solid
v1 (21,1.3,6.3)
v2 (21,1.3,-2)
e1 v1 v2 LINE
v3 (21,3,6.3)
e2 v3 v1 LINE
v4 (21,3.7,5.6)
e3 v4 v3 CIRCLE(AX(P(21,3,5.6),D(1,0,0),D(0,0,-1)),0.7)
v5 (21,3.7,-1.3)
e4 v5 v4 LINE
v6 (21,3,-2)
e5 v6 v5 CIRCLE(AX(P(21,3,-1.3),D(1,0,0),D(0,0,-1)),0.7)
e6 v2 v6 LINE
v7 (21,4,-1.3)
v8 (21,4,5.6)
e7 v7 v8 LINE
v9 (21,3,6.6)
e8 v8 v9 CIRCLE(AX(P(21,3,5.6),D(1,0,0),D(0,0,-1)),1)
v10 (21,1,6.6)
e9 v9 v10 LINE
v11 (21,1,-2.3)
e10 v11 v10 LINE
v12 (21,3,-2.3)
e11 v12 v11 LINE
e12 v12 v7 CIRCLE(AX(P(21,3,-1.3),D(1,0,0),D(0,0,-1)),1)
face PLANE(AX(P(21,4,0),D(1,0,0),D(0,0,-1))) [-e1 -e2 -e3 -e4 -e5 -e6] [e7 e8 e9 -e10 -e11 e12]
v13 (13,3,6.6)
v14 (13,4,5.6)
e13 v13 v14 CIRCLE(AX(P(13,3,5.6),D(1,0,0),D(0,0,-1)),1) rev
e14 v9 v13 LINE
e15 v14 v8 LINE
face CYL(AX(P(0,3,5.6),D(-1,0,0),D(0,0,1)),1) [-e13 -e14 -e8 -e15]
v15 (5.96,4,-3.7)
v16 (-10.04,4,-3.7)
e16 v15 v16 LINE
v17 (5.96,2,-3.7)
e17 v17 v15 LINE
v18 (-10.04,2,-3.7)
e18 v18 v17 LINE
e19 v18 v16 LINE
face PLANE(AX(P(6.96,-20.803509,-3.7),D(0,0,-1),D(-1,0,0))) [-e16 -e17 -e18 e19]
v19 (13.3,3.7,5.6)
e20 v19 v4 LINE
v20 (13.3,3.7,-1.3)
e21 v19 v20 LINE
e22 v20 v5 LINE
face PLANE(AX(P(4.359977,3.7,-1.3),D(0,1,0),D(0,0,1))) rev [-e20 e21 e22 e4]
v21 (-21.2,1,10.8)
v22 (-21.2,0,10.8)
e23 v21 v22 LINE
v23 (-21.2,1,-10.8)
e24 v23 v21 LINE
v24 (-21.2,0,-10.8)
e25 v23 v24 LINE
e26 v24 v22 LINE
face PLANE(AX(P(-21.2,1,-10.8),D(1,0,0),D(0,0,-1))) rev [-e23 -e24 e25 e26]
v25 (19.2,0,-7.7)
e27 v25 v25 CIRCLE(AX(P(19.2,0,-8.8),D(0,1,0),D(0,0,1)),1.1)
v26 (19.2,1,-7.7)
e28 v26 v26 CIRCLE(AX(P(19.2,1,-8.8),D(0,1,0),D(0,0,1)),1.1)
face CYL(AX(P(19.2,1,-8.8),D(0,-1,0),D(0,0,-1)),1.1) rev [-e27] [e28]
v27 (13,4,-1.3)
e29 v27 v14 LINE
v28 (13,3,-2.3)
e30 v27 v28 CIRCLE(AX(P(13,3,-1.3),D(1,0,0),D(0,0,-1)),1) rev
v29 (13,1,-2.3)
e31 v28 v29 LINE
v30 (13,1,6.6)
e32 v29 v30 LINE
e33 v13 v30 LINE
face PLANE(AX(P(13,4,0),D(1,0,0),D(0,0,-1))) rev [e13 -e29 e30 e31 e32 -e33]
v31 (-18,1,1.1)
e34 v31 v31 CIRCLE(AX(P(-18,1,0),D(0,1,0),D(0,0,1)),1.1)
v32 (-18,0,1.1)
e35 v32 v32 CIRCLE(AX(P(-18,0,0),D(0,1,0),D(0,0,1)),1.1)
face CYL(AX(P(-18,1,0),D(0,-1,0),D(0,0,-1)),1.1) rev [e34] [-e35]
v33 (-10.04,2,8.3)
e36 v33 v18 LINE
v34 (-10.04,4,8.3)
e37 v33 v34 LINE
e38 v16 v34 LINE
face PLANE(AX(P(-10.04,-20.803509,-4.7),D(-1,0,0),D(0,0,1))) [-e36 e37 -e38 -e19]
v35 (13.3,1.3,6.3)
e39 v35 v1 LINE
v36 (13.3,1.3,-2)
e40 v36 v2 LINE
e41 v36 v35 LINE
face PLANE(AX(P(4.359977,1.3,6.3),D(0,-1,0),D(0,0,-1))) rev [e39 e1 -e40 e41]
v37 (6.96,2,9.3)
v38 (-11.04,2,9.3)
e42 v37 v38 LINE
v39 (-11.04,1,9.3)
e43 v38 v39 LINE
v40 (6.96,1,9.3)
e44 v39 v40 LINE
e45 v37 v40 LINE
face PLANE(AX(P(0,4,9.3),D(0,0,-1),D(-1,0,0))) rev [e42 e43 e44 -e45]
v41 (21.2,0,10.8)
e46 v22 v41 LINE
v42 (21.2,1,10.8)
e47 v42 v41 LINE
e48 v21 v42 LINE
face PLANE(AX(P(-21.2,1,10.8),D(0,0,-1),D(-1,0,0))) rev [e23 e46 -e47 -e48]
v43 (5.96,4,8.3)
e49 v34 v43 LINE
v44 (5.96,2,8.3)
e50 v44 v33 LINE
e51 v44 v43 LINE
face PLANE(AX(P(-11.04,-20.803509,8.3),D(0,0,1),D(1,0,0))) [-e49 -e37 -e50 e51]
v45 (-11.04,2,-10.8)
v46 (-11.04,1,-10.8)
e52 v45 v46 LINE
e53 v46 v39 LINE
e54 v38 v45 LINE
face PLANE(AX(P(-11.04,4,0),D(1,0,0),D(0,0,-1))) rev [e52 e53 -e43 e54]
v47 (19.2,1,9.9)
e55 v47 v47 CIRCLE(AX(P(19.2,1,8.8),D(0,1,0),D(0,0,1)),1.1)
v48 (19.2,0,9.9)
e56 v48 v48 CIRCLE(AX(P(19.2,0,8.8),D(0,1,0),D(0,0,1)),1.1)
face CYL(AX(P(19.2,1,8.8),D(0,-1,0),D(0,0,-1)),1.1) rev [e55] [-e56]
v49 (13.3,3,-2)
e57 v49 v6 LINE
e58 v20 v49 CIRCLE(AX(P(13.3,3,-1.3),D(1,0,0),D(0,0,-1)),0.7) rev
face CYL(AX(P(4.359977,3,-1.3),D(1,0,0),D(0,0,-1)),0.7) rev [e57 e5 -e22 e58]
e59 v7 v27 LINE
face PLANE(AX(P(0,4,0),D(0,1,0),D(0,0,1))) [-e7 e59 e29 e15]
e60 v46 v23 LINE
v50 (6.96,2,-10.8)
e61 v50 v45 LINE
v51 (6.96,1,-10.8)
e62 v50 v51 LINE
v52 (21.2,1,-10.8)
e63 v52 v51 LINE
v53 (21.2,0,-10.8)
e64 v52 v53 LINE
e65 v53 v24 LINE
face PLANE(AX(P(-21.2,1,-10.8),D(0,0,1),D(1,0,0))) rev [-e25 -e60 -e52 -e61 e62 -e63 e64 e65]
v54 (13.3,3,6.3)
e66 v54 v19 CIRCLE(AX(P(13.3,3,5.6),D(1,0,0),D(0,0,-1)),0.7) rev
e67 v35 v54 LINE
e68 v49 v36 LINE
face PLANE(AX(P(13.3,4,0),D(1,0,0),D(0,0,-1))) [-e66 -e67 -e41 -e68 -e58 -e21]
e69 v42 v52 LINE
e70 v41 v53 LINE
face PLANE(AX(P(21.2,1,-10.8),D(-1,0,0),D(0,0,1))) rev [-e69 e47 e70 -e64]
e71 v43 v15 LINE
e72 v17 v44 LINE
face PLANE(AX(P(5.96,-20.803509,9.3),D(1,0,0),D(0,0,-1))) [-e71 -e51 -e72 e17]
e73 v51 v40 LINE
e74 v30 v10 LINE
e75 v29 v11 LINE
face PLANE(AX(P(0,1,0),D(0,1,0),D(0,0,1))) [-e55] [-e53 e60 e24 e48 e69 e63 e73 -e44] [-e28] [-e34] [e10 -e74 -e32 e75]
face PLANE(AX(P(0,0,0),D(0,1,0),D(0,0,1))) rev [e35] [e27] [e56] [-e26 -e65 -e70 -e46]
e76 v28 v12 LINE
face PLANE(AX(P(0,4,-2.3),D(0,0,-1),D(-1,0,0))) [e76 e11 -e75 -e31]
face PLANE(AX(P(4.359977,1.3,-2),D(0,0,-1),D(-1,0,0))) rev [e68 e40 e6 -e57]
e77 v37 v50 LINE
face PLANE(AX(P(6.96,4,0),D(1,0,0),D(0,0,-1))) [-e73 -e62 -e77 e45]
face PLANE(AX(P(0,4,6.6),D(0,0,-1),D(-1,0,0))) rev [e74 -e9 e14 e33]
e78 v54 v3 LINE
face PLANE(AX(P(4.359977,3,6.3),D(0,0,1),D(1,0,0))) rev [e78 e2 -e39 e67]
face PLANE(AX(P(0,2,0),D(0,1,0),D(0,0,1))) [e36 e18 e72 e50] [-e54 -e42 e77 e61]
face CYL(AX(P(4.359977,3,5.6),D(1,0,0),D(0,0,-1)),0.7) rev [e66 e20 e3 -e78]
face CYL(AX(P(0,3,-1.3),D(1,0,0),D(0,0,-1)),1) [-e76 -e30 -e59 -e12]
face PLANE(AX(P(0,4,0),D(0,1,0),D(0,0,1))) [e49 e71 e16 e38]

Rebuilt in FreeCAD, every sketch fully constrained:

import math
import FreeCAD as App
import Part
import Sketcher
from FreeCAD import Vector


def edges_at(feature, points):
    """Names of the edges that pass closest to the given points."""
    edges = feature.Shape.Edges
    near = lambda p: min(range(len(edges)), key=lambda i: edges[i].distToShape(Part.Vertex(*p))[0])
    return sorted({f"Edge{near(p) + 1}" for p in points})

doc = App.newDocument("Part")
body = doc.addObject("PartDesign::Body", "Body")

sketch1 = doc.addObject("Sketcher::SketchObject", "Sketch")
body.addObject(sketch1)
sketch1.AttachmentSupport = (doc.XZ_Plane, [""])
sketch1.MapMode = "FlatFace"
sketch1.addGeometry(Part.LineSegment(Vector(-21.2, -10.8, 0), Vector(-21.2, 10.8, 0)), False)
sketch1.addGeometry(Part.LineSegment(Vector(-21.2, 10.8, 0), Vector(21.2, 10.8, 0)), False)
sketch1.addGeometry(Part.LineSegment(Vector(21.2, 10.8, 0), Vector(21.2, -10.8, 0)), False)
sketch1.addGeometry(Part.LineSegment(Vector(21.2, -10.8, 0), Vector(-21.2, -10.8, 0)), False)
sketch1.addGeometry(Part.Circle(Vector(19.2, 8.8, 0), Vector(0, 0, 1), 1.1), False)
sketch1.addGeometry(Part.Circle(Vector(-18, 0, 0), Vector(0, 0, 1), 1.1), False)
sketch1.addGeometry(Part.Circle(Vector(19.2, -8.8, 0), Vector(0, 0, 1), 1.1), False)
sketch1.addConstraint(Sketcher.Constraint("Coincident", 0, 2, 1, 1))
sketch1.addConstraint(Sketcher.Constraint("Coincident", 1, 2, 2, 1))
sketch1.addConstraint(Sketcher.Constraint("Coincident", 2, 2, 3, 1))
sketch1.addConstraint(Sketcher.Constraint("Coincident", 3, 2, 0, 1))
sketch1.addConstraint(Sketcher.Constraint("Vertical", 0))
sketch1.addConstraint(Sketcher.Constraint("Horizontal", 1))
sketch1.addConstraint(Sketcher.Constraint("Vertical", 2))
sketch1.addConstraint(Sketcher.Constraint("Horizontal", 3))
sketch1.addConstraint(Sketcher.Constraint("Equal", 4, 5))
sketch1.addConstraint(Sketcher.Constraint("Equal", 5, 6))
sketch1.addConstraint(Sketcher.Constraint("Symmetric", 0, 2, 2, 2, -1, 1))
sketch1.addConstraint(Sketcher.Constraint("Symmetric", 4, 3, 6, 3, -1))
sketch1.addConstraint(Sketcher.Constraint("PointOnObject", 5, 3, -1))
sketch1.addConstraint(Sketcher.Constraint("Diameter", 4, 2.2))
sketch1.addConstraint(Sketcher.Constraint("DistanceX", 1, 1, 1, 2, 42.4))
sketch1.addConstraint(Sketcher.Constraint("DistanceY", 0, 1, 0, 2, 21.6))
sketch1.addConstraint(Sketcher.Constraint("DistanceX", 5, 3, -1, 1, 18.0))
sketch1.addConstraint(Sketcher.Constraint("DistanceY", 4, 3, 0, 2, 2.0))
sketch1.addConstraint(Sketcher.Constraint("DistanceX", 4, 3, 1, 2, 2.0))
pad1 = doc.addObject("PartDesign::Pad", "Pad")
body.addObject(pad1)
pad1.Profile = sketch1
pad1.Length = 1
pad1.Reversed = True

sketch2 = doc.addObject("Sketcher::SketchObject", "Sketch001")
body.addObject(sketch2)
sketch2.AttachmentSupport = (doc.XZ_Plane, [""])
sketch2.MapMode = "FlatFace"
sketch2.AttachmentOffset = App.Placement(Vector(0, 0, -1), App.Rotation())
sketch2.addGeometry(Part.LineSegment(Vector(-11, -5, 0), Vector(-11, 9, 0)), False)
sketch2.addGeometry(Part.LineSegment(Vector(-11, 9, 0), Vector(7, 9, 0)), False)
sketch2.addGeometry(Part.LineSegment(Vector(7, 9, 0), Vector(7, -5, 0)), False)
sketch2.addGeometry(Part.LineSegment(Vector(7, -5, 0), Vector(-11, -5, 0)), False)
sketch2.addGeometry(Part.LineSegment(Vector(13, -2, 0), Vector(13, 7, 0)), False)
sketch2.addGeometry(Part.LineSegment(Vector(13, 7, 0), Vector(21, 7, 0)), False)
sketch2.addGeometry(Part.LineSegment(Vector(21, 7, 0), Vector(21, -2, 0)), False)
sketch2.addGeometry(Part.LineSegment(Vector(21, -2, 0), Vector(13, -2, 0)), False)
sketch2.addConstraint(Sketcher.Constraint("Coincident", 0, 2, 1, 1))
sketch2.addConstraint(Sketcher.Constraint("Coincident", 1, 2, 2, 1))
sketch2.addConstraint(Sketcher.Constraint("Coincident", 2, 2, 3, 1))
sketch2.addConstraint(Sketcher.Constraint("Coincident", 3, 2, 0, 1))
sketch2.addConstraint(Sketcher.Constraint("Coincident", 4, 2, 5, 1))
sketch2.addConstraint(Sketcher.Constraint("Coincident", 5, 2, 6, 1))
sketch2.addConstraint(Sketcher.Constraint("Coincident", 6, 2, 7, 1))
sketch2.addConstraint(Sketcher.Constraint("Coincident", 7, 2, 4, 1))
sketch2.addConstraint(Sketcher.Constraint("Vertical", 0))
sketch2.addConstraint(Sketcher.Constraint("Horizontal", 1))
sketch2.addConstraint(Sketcher.Constraint("Vertical", 2))
sketch2.addConstraint(Sketcher.Constraint("Horizontal", 3))
sketch2.addConstraint(Sketcher.Constraint("Vertical", 4))
sketch2.addConstraint(Sketcher.Constraint("Horizontal", 5))
sketch2.addConstraint(Sketcher.Constraint("Vertical", 6))
sketch2.addConstraint(Sketcher.Constraint("Horizontal", 7))
sketch2.addConstraint(Sketcher.Constraint("DistanceX", 1, 1, 1, 2, 18.0))
sketch2.addConstraint(Sketcher.Constraint("DistanceX", 5, 1, 5, 2, 8.0))
sketch2.addConstraint(Sketcher.Constraint("DistanceY", 0, 1, 0, 2, 14.0))
sketch2.addConstraint(Sketcher.Constraint("DistanceY", 4, 1, 4, 2, 8.9))
sketch2.addConstraint(Sketcher.Constraint("DistanceX", -1, 1, 4, 2, 13.0))
sketch2.addConstraint(Sketcher.Constraint("DistanceY", -1, 1, 0, 2, 9.3))
sketch2.addConstraint(Sketcher.Constraint("DistanceY", -1, 1, 4, 2, 6.6))
sketch2.addConstraint(Sketcher.Constraint("DistanceX", 0, 2, -1, 1, 11.04))
pad2 = doc.addObject("PartDesign::Pad", "Pad001")
body.addObject(pad2)
pad2.Profile = sketch2
pad2.Length = 3
pad2.Reversed = True
doc.recompute()

fillet = doc.addObject("PartDesign::Fillet", "Fillet")
body.addObject(fillet)
fillet.Base = (pad2, edges_at(pad2, [(17, 4, -2.3), (17, 4, 6.6)]))
fillet.Radius = 1

sketch3 = doc.addObject("Sketcher::SketchObject", "Sketch002")
body.addObject(sketch3)
sketch3.AttachmentSupport = (doc.XZ_Plane, [""])
sketch3.MapMode = "FlatFace"
sketch3.AttachmentOffset = App.Placement(Vector(0, 0, -1), App.Rotation())
sketch3.addGeometry(Part.LineSegment(Vector(-11, -11, 0), Vector(-11, -5, 0)), False)
sketch3.addGeometry(Part.LineSegment(Vector(-11, -5, 0), Vector(7, -5, 0)), False)
sketch3.addGeometry(Part.LineSegment(Vector(7, -5, 0), Vector(7, -11, 0)), False)
sketch3.addGeometry(Part.LineSegment(Vector(7, -11, 0), Vector(-11, -11, 0)), False)
sketch3.addConstraint(Sketcher.Constraint("Coincident", 0, 2, 1, 1))
sketch3.addConstraint(Sketcher.Constraint("Coincident", 1, 2, 2, 1))
sketch3.addConstraint(Sketcher.Constraint("Coincident", 2, 2, 3, 1))
sketch3.addConstraint(Sketcher.Constraint("Coincident", 3, 2, 0, 1))
sketch3.addConstraint(Sketcher.Constraint("Vertical", 0))
sketch3.addConstraint(Sketcher.Constraint("Horizontal", 1))
sketch3.addConstraint(Sketcher.Constraint("Vertical", 2))
sketch3.addConstraint(Sketcher.Constraint("Horizontal", 3))
sketch3.addConstraint(Sketcher.Constraint("DistanceX", 1, 1, 1, 2, 18.0))
sketch3.addConstraint(Sketcher.Constraint("DistanceY", 0, 1, 0, 2, 6.1))
sketch3.addConstraint(Sketcher.Constraint("DistanceY", 0, 2, -1, 1, 4.7))
sketch3.addConstraint(Sketcher.Constraint("DistanceX", 0, 2, -1, 1, 11.04))
pad3 = doc.addObject("PartDesign::Pad", "Pad002")
body.addObject(pad3)
pad3.Profile = sketch3
pad3.Length = 1
pad3.Reversed = True

sketch4 = doc.addObject("Sketcher::SketchObject", "Sketch003")
body.addObject(sketch4)
sketch4.AttachmentSupport = (doc.YZ_Plane, [""])
sketch4.MapMode = "FlatFace"
sketch4.AttachmentOffset = App.Placement(Vector(0, 0, 21), App.Rotation())
sketch4.addGeometry(Part.LineSegment(Vector(3.7, -1.3, 0), Vector(3.7, 5.6, 0)), False)
sketch4.addGeometry(Part.ArcOfCircle(Part.Circle(Vector(3, 5.6, 0), Vector(0, 0, 1), 0.7), math.radians(0), math.radians(90)), False)
sketch4.addGeometry(Part.LineSegment(Vector(3, 6.3, 0), Vector(1.3, 6.3, 0)), False)
sketch4.addGeometry(Part.LineSegment(Vector(1.3, 6.3, 0), Vector(1.3, -2, 0)), False)
sketch4.addGeometry(Part.LineSegment(Vector(1.3, -2, 0), Vector(3, -2, 0)), False)
sketch4.addGeometry(Part.ArcOfCircle(Part.Circle(Vector(3, -1.3, 0), Vector(0, 0, 1), 0.7), math.radians(-90), math.radians(0)), False)
sketch4.addConstraint(Sketcher.Constraint("Tangent", 0, 2, 1, 1))
sketch4.addConstraint(Sketcher.Constraint("Tangent", 1, 2, 2, 1))
sketch4.addConstraint(Sketcher.Constraint("Coincident", 2, 2, 3, 1))
sketch4.addConstraint(Sketcher.Constraint("Coincident", 3, 2, 4, 1))
sketch4.addConstraint(Sketcher.Constraint("Tangent", 4, 2, 5, 1))
sketch4.addConstraint(Sketcher.Constraint("Tangent", 5, 2, 0, 1))
sketch4.addConstraint(Sketcher.Constraint("Vertical", 0))
sketch4.addConstraint(Sketcher.Constraint("Horizontal", 2))
sketch4.addConstraint(Sketcher.Constraint("Vertical", 3))
sketch4.addConstraint(Sketcher.Constraint("Horizontal", 4))
sketch4.addConstraint(Sketcher.Constraint("Equal", 1, 5))
sketch4.addConstraint(Sketcher.Constraint("Radius", 1, 0.7))
sketch4.addConstraint(Sketcher.Constraint("DistanceX", 2, 2, 2, 1, 1.7))
sketch4.addConstraint(Sketcher.Constraint("DistanceY", 0, 1, 0, 2, 6.9))
sketch4.addConstraint(Sketcher.Constraint("DistanceX", -1, 1, 1, 3, 3.0))
sketch4.addConstraint(Sketcher.Constraint("DistanceY", 3, 2, -1, 1, 2.0))
pocket1 = doc.addObject("PartDesign::Pocket", "Pocket")
body.addObject(pocket1)
pocket1.Profile = sketch4
pocket1.Length = 7.7

sketch5 = doc.addObject("Sketcher::SketchObject", "Sketch004")
body.addObject(sketch5)
sketch5.AttachmentSupport = (doc.XZ_Plane, [""])
sketch5.MapMode = "FlatFace"
sketch5.AttachmentOffset = App.Placement(Vector(0, 0, -4), App.Rotation())
sketch5.addGeometry(Part.LineSegment(Vector(-11, -5, 0), Vector(-11, 9, 0)), False)
sketch5.addGeometry(Part.LineSegment(Vector(-11, 9, 0), Vector(7, 9, 0)), False)
sketch5.addGeometry(Part.LineSegment(Vector(7, 9, 0), Vector(7, -5, 0)), False)
sketch5.addGeometry(Part.LineSegment(Vector(7, -5, 0), Vector(-11, -5, 0)), False)
sketch5.addGeometry(Part.LineSegment(Vector(6, 8, 0), Vector(-10, 8, 0)), False)
sketch5.addGeometry(Part.LineSegment(Vector(-10, 8, 0), Vector(-10, -4, 0)), False)
sketch5.addGeometry(Part.LineSegment(Vector(-10, -4, 0), Vector(6, -4, 0)), False)
sketch5.addGeometry(Part.LineSegment(Vector(6, -4, 0), Vector(6, 8, 0)), False)
sketch5.addConstraint(Sketcher.Constraint("Coincident", 0, 2, 1, 1))
sketch5.addConstraint(Sketcher.Constraint("Coincident", 1, 2, 2, 1))
sketch5.addConstraint(Sketcher.Constraint("Coincident", 2, 2, 3, 1))
sketch5.addConstraint(Sketcher.Constraint("Coincident", 3, 2, 0, 1))
sketch5.addConstraint(Sketcher.Constraint("Coincident", 4, 2, 5, 1))
sketch5.addConstraint(Sketcher.Constraint("Coincident", 5, 2, 6, 1))
sketch5.addConstraint(Sketcher.Constraint("Coincident", 6, 2, 7, 1))
sketch5.addConstraint(Sketcher.Constraint("Coincident", 7, 2, 4, 1))
sketch5.addConstraint(Sketcher.Constraint("Vertical", 0))
sketch5.addConstraint(Sketcher.Constraint("Horizontal", 1))
sketch5.addConstraint(Sketcher.Constraint("Vertical", 2))
sketch5.addConstraint(Sketcher.Constraint("Horizontal", 3))
sketch5.addConstraint(Sketcher.Constraint("Horizontal", 4))
sketch5.addConstraint(Sketcher.Constraint("Vertical", 5))
sketch5.addConstraint(Sketcher.Constraint("Horizontal", 6))
sketch5.addConstraint(Sketcher.Constraint("Vertical", 7))
sketch5.addConstraint(Sketcher.Constraint("DistanceX", 1, 1, 1, 2, 18.0))
sketch5.addConstraint(Sketcher.Constraint("DistanceX", 4, 2, 4, 1, 16.0))
sketch5.addConstraint(Sketcher.Constraint("DistanceY", 0, 1, 0, 2, 14.0))
sketch5.addConstraint(Sketcher.Constraint("DistanceY", 5, 2, 5, 1, 12.0))
sketch5.addConstraint(Sketcher.Constraint("DistanceX", 0, 2, 4, 2, 1.0))
sketch5.addConstraint(Sketcher.Constraint("DistanceY", 4, 2, 0, 2, 1.0))
sketch5.addConstraint(Sketcher.Constraint("DistanceY", -1, 1, 0, 2, 9.3))
sketch5.addConstraint(Sketcher.Constraint("DistanceX", 0, 2, -1, 1, 11.04))
pocket2 = doc.addObject("PartDesign::Pocket", "Pocket001")
body.addObject(pocket2)
pocket2.Profile = sketch5
pocket2.Length = 2
pocket2.Reversed = True

doc.recompute()
